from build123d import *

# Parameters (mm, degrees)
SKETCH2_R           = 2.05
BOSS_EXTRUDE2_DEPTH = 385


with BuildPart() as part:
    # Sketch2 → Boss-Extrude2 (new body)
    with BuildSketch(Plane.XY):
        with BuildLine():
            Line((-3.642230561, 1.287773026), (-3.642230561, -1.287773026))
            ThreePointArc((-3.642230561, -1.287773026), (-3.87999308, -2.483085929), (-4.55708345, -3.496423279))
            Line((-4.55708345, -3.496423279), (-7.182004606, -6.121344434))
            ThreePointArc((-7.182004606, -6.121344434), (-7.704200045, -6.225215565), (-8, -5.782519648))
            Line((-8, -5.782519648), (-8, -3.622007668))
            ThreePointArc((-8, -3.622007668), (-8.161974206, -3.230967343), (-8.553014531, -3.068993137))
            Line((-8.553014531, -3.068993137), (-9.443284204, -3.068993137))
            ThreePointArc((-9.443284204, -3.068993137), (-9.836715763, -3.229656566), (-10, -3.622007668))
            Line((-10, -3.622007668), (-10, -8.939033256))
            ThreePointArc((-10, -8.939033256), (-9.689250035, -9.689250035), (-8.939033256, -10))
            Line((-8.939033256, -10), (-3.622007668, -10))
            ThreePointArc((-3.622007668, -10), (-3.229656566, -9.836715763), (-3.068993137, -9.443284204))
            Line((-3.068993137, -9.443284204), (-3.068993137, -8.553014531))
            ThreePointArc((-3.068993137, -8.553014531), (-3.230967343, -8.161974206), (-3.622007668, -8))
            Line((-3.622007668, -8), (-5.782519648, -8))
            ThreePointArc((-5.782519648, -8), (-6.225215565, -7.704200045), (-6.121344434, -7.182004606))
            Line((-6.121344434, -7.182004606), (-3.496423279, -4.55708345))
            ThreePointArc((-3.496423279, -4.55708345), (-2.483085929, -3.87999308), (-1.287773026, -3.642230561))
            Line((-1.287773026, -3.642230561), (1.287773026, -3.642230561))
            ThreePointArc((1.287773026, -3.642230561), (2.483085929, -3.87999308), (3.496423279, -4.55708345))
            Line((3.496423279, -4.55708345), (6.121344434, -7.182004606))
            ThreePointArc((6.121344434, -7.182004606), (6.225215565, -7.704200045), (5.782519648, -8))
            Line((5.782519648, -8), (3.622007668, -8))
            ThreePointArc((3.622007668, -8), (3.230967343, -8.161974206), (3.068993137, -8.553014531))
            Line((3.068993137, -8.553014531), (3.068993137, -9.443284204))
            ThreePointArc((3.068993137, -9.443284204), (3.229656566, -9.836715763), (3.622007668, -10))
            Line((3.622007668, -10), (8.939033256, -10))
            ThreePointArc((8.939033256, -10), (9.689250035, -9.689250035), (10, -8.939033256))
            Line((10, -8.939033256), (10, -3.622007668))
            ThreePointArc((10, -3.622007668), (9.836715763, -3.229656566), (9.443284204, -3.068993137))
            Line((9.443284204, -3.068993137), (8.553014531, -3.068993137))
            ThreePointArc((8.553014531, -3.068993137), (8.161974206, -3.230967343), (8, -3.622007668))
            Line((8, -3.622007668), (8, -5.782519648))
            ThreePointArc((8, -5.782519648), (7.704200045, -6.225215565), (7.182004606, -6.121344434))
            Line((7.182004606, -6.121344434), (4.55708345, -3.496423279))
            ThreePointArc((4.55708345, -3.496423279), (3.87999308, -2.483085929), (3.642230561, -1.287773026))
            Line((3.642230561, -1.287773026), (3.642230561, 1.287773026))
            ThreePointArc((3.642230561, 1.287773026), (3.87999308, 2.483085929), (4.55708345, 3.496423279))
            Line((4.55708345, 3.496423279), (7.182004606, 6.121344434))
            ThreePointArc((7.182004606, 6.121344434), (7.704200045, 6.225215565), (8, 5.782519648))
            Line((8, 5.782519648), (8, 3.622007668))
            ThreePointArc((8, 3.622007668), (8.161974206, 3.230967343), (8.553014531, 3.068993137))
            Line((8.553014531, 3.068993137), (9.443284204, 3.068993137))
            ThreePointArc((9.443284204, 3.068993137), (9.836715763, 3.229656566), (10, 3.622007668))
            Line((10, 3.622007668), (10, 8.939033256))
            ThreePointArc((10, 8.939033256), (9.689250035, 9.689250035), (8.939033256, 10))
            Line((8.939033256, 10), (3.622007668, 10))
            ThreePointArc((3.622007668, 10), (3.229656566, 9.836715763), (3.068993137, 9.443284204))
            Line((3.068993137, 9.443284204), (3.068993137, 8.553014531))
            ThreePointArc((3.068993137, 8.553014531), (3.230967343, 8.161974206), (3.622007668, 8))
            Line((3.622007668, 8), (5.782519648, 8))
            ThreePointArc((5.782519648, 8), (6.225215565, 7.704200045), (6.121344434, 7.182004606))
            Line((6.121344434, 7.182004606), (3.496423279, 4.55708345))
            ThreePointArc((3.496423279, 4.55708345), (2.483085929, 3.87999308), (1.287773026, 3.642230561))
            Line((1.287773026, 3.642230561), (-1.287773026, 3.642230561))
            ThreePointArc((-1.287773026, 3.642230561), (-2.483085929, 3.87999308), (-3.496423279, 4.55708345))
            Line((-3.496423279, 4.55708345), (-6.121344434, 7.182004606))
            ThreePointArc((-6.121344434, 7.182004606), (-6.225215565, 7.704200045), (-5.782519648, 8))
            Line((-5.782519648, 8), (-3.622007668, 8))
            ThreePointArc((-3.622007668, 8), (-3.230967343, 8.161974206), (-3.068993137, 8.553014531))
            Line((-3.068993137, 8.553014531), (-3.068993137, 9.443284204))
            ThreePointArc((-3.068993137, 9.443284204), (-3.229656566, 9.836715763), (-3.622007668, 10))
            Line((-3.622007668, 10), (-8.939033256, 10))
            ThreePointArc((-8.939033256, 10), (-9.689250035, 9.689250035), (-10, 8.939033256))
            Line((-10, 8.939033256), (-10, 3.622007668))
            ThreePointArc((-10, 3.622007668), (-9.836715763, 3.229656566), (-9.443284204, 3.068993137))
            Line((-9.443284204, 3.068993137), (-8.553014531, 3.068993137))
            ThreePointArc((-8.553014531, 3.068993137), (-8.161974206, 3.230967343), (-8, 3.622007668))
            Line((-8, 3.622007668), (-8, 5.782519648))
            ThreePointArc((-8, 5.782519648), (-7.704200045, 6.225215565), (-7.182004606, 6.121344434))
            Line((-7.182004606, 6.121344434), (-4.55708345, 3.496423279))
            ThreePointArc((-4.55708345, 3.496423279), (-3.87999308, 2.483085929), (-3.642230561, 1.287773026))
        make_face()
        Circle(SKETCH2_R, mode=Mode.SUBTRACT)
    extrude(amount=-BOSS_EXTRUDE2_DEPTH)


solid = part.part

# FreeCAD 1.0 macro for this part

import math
import FreeCAD as App
import Part
import Sketcher
from FreeCAD import Vector
Q = App.Units.Quantity

doc = App.newDocument("Part")
body = doc.addObject("PartDesign::Body", "Body")

# Sketch on XY plane
sketch1 = body.newObject("Sketcher::SketchObject", "Sketch")
sketch1.AttachmentSupport = (doc.getObject("XY_Plane"), [""])
sketch1.MapMode = "FlatFace"
sketch1.addGeometry(Part.LineSegment(Vector(-3.642231, 1.287773, 0), Vector(-3.642231, -1.287773, 0)), False)
sketch1.addGeometry(Part.ArcOfCircle(Part.Circle(Vector(-6.765734, -1.287773, 0), Vector(0, 0, 1), 3.123503), math.radians(-45), math.radians(0)), False)
sketch1.addGeometry(Part.LineSegment(Vector(-4.557083, -3.496423, 0), Vector(-7.182005, -6.121344, 0)), False)
sketch1.addGeometry(Part.ArcOfCircle(Part.Circle(Vector(-7.520829, -5.78252, 0), Vector(0, 0, 1), 0.479171), math.radians(180), math.radians(315)), False)
sketch1.addGeometry(Part.LineSegment(Vector(-8, -5.78252, 0), Vector(-8, -3.622008, 0)), False)
sketch1.addGeometry(Part.ArcOfCircle(Part.Circle(Vector(-8.553015, -3.622008, 0), Vector(0, 0, 1), 0.553015), math.radians(0), math.radians(90)), False)
sketch1.addGeometry(Part.LineSegment(Vector(-8.553015, -3.068993, 0), Vector(-9.443284, -3.068993, 0)), False)
sketch1.addGeometry(Part.ArcOfCircle(Part.Circle(Vector(-9.446973, -3.622008, 0), Vector(0, 0, 1), 0.553027), math.radians(89.617806), math.radians(180)), False)
sketch1.addGeometry(Part.LineSegment(Vector(-10, -3.622008, 0), Vector(-10, -8.939033, 0)), False)
sketch1.addGeometry(Part.ArcOfCircle(Part.Circle(Vector(-8.939033, -8.939033, 0), Vector(0, 0, 1), 1.060967), math.radians(-180), math.radians(-90)), False)
sketch1.addGeometry(Part.LineSegment(Vector(-8.939033, -10, 0), Vector(-3.622008, -10, 0)), False)
sketch1.addGeometry(Part.ArcOfCircle(Part.Circle(Vector(-3.622008, -9.446973, 0), Vector(0, 0, 1), 0.553027), math.radians(-90), math.radians(0.382194)), False)
sketch1.addGeometry(Part.LineSegment(Vector(-3.068993, -9.443284, 0), Vector(-3.068993, -8.553015, 0)), False)
sketch1.addGeometry(Part.ArcOfCircle(Part.Circle(Vector(-3.622008, -8.553015, 0), Vector(0, 0, 1), 0.553015), math.radians(0), math.radians(90)), False)
sketch1.addGeometry(Part.LineSegment(Vector(-3.622008, -8, 0), Vector(-5.78252, -8, 0)), False)
sketch1.addGeometry(Part.ArcOfCircle(Part.Circle(Vector(-5.78252, -7.520829, 0), Vector(0, 0, 1), 0.479171), math.radians(135), math.radians(270)), False)
sketch1.addGeometry(Part.LineSegment(Vector(-6.121344, -7.182005, 0), Vector(-3.496423, -4.557083, 0)), False)
sketch1.addGeometry(Part.ArcOfCircle(Part.Circle(Vector(-1.287773, -6.765734, 0), Vector(0, 0, 1), 3.123503), math.radians(90), math.radians(135)), False)
sketch1.addGeometry(Part.LineSegment(Vector(-1.287773, -3.642231, 0), Vector(1.287773, -3.642231, 0)), False)
sketch1.addGeometry(Part.ArcOfCircle(Part.Circle(Vector(1.287773, -6.765734, 0), Vector(0, 0, 1), 3.123503), math.radians(45), math.radians(90)), False)
sketch1.addGeometry(Part.LineSegment(Vector(3.496423, -4.557083, 0), Vector(6.121344, -7.182005, 0)), False)
sketch1.addGeometry(Part.ArcOfCircle(Part.Circle(Vector(5.78252, -7.520829, 0), Vector(0, 0, 1), 0.479171), math.radians(-90), math.radians(45)), False)
sketch1.addGeometry(Part.LineSegment(Vector(5.78252, -8, 0), Vector(3.622008, -8, 0)), False)
sketch1.addGeometry(Part.ArcOfCircle(Part.Circle(Vector(3.622008, -8.553015, 0), Vector(0, 0, 1), 0.553015), math.radians(90), math.radians(180)), False)
sketch1.addGeometry(Part.LineSegment(Vector(3.068993, -8.553015, 0), Vector(3.068993, -9.443284, 0)), False)
sketch1.addGeometry(Part.ArcOfCircle(Part.Circle(Vector(3.622008, -9.446973, 0), Vector(0, 0, 1), 0.553027), math.radians(179.617806), math.radians(270)), False)
sketch1.addGeometry(Part.LineSegment(Vector(3.622008, -10, 0), Vector(8.939033, -10, 0)), False)
sketch1.addGeometry(Part.ArcOfCircle(Part.Circle(Vector(8.939033, -8.939033, 0), Vector(0, 0, 1), 1.060967), math.radians(-90), math.radians(0)), False)
sketch1.addGeometry(Part.LineSegment(Vector(10, -8.939033, 0), Vector(10, -3.622008, 0)), False)
sketch1.addGeometry(Part.ArcOfCircle(Part.Circle(Vector(9.446973, -3.622008, 0), Vector(0, 0, 1), 0.553027), math.radians(0), math.radians(90.382194)), False)
sketch1.addGeometry(Part.LineSegment(Vector(9.443284, -3.068993, 0), Vector(8.553015, -3.068993, 0)), False)
sketch1.addGeometry(Part.ArcOfCircle(Part.Circle(Vector(8.553015, -3.622008, 0), Vector(0, 0, 1), 0.553015), math.radians(90), math.radians(180)), False)
sketch1.addGeometry(Part.LineSegment(Vector(8, -3.622008, 0), Vector(8, -5.78252, 0)), False)
sketch1.addGeometry(Part.ArcOfCircle(Part.Circle(Vector(7.520829, -5.78252, 0), Vector(0, 0, 1), 0.479171), math.radians(-135), math.radians(0)), False)
sketch1.addGeometry(Part.LineSegment(Vector(7.182005, -6.121344, 0), Vector(4.557083, -3.496423, 0)), False)
sketch1.addGeometry(Part.ArcOfCircle(Part.Circle(Vector(6.765734, -1.287773, 0), Vector(0, 0, 1), 3.123503), math.radians(180), math.radians(225)), False)
sketch1.addGeometry(Part.LineSegment(Vector(3.642231, -1.287773, 0), Vector(3.642231, 1.287773, 0)), False)
sketch1.addGeometry(Part.ArcOfCircle(Part.Circle(Vector(6.765734, 1.287773, 0), Vector(0, 0, 1), 3.123503), math.radians(135), math.radians(180)), False)
sketch1.addGeometry(Part.LineSegment(Vector(4.557083, 3.496423, 0), Vector(7.182005, 6.121344, 0)), False)
sketch1.addGeometry(Part.ArcOfCircle(Part.Circle(Vector(7.520829, 5.78252, 0), Vector(0, 0, 1), 0.479171), math.radians(0), math.radians(135)), False)
sketch1.addGeometry(Part.LineSegment(Vector(8, 5.78252, 0), Vector(8, 3.622008, 0)), False)
sketch1.addGeometry(Part.ArcOfCircle(Part.Circle(Vector(8.553015, 3.622008, 0), Vector(0, 0, 1), 0.553015), math.radians(180), math.radians(270)), False)
sketch1.addGeometry(Part.LineSegment(Vector(8.553015, 3.068993, 0), Vector(9.443284, 3.068993, 0)), False)
sketch1.addGeometry(Part.ArcOfCircle(Part.Circle(Vector(9.446973, 3.622008, 0), Vector(0, 0, 1), 0.553027), math.radians(-90.382194), math.radians(0)), False)
sketch1.addGeometry(Part.LineSegment(Vector(10, 3.622008, 0), Vector(10, 8.939033, 0)), False)
sketch1.addGeometry(Part.ArcOfCircle(Part.Circle(Vector(8.939033, 8.939033, 0), Vector(0, 0, 1), 1.060967), math.radians(0), math.radians(90)), False)
sketch1.addGeometry(Part.LineSegment(Vector(8.939033, 10, 0), Vector(3.622008, 10, 0)), False)
sketch1.addGeometry(Part.ArcOfCircle(Part.Circle(Vector(3.622008, 9.446973, 0), Vector(0, 0, 1), 0.553027), math.radians(90), math.radians(180.382194)), False)
sketch1.addGeometry(Part.LineSegment(Vector(3.068993, 9.443284, 0), Vector(3.068993, 8.553015, 0)), False)
sketch1.addGeometry(Part.ArcOfCircle(Part.Circle(Vector(3.622008, 8.553015, 0), Vector(0, 0, 1), 0.553015), math.radians(180), math.radians(270)), False)
sketch1.addGeometry(Part.LineSegment(Vector(3.622008, 8, 0), Vector(5.78252, 8, 0)), False)
sketch1.addGeometry(Part.ArcOfCircle(Part.Circle(Vector(5.78252, 7.520829, 0), Vector(0, 0, 1), 0.479171), math.radians(-45), math.radians(90)), False)
sketch1.addGeometry(Part.LineSegment(Vector(6.121344, 7.182005, 0), Vector(3.496423, 4.557083, 0)), False)
sketch1.addGeometry(Part.ArcOfCircle(Part.Circle(Vector(1.287773, 6.765734, 0), Vector(0, 0, 1), 3.123503), math.radians(-90), math.radians(-45)), False)
sketch1.addGeometry(Part.LineSegment(Vector(1.287773, 3.642231, 0), Vector(-1.287773, 3.642231, 0)), False)
sketch1.addGeometry(Part.ArcOfCircle(Part.Circle(Vector(-1.287773, 6.765734, 0), Vector(0, 0, 1), 3.123503), math.radians(-135), math.radians(-90)), False)
sketch1.addGeometry(Part.LineSegment(Vector(-3.496423, 4.557083, 0), Vector(-6.121344, 7.182005, 0)), False)
sketch1.addGeometry(Part.ArcOfCircle(Part.Circle(Vector(-5.78252, 7.520829, 0), Vector(0, 0, 1), 0.479171), math.radians(90), math.radians(225)), False)
sketch1.addGeometry(Part.LineSegment(Vector(-5.78252, 8, 0), Vector(-3.622008, 8, 0)), False)
sketch1.addGeometry(Part.ArcOfCircle(Part.Circle(Vector(-3.622008, 8.553015, 0), Vector(0, 0, 1), 0.553015), math.radians(-90), math.radians(0)), False)
sketch1.addGeometry(Part.LineSegment(Vector(-3.068993, 8.553015, 0), Vector(-3.068993, 9.443284, 0)), False)
sketch1.addGeometry(Part.ArcOfCircle(Part.Circle(Vector(-3.622008, 9.446973, 0), Vector(0, 0, 1), 0.553027), math.radians(-0.382194), math.radians(90)), False)
sketch1.addGeometry(Part.LineSegment(Vector(-3.622008, 10, 0), Vector(-8.939033, 10, 0)), False)
sketch1.addGeometry(Part.ArcOfCircle(Part.Circle(Vector(-8.939033, 8.939033, 0), Vector(0, 0, 1), 1.060967), math.radians(90), math.radians(180)), False)
sketch1.addGeometry(Part.LineSegment(Vector(-10, 8.939033, 0), Vector(-10, 3.622008, 0)), False)
sketch1.addGeometry(Part.ArcOfCircle(Part.Circle(Vector(-9.446973, 3.622008, 0), Vector(0, 0, 1), 0.553027), math.radians(180), math.radians(270.382194)), False)
sketch1.addGeometry(Part.LineSegment(Vector(-9.443284, 3.068993, 0), Vector(-8.553015, 3.068993, 0)), False)
sketch1.addGeometry(Part.ArcOfCircle(Part.Circle(Vector(-8.553015, 3.622008, 0), Vector(0, 0, 1), 0.553015), math.radians(-90), math.radians(0)), False)
sketch1.addGeometry(Part.LineSegment(Vector(-8, 3.622008, 0), Vector(-8, 5.78252, 0)), False)
sketch1.addGeometry(Part.ArcOfCircle(Part.Circle(Vector(-7.520829, 5.78252, 0), Vector(0, 0, 1), 0.479171), math.radians(45), math.radians(180)), False)
sketch1.addGeometry(Part.LineSegment(Vector(-7.182005, 6.121344, 0), Vector(-4.557083, 3.496423, 0)), False)
sketch1.addGeometry(Part.ArcOfCircle(Part.Circle(Vector(-6.765734, 1.287773, 0), Vector(0, 0, 1), 3.123503), math.radians(0), math.radians(45)), False)
sketch1.addGeometry(Part.Circle(Vector(0, 0, 0), Vector(0, 0, 1), 2.05), False)
sketch1.addConstraint(Sketcher.Constraint("Tangent", 0, 2, 1, 2))
sketch1.addConstraint(Sketcher.Constraint("Tangent", 1, 1, 2, 1))
sketch1.addConstraint(Sketcher.Constraint("Tangent", 2, 2, 3, 2))
sketch1.addConstraint(Sketcher.Constraint("Tangent", 3, 1, 4, 1))
sketch1.addConstraint(Sketcher.Constraint("Tangent", 4, 2, 5, 1))
sketch1.addConstraint(Sketcher.Constraint("Tangent", 5, 2, 6, 1))
sketch1.addConstraint(Sketcher.Constraint("Coincident", 6, 2, 7, 1))
sketch1.addConstraint(Sketcher.Constraint("Tangent", 7, 2, 8, 1))
sketch1.addConstraint(Sketcher.Constraint("Tangent", 8, 2, 9, 1))
sketch1.addConstraint(Sketcher.Constraint("Tangent", 9, 2, 10, 1))
sketch1.addConstraint(Sketcher.Constraint("Tangent", 10, 2, 11, 1))
sketch1.addConstraint(Sketcher.Constraint("Coincident", 11, 2, 12, 1))
sketch1.addConstraint(Sketcher.Constraint("Tangent", 12, 2, 13, 1))
sketch1.addConstraint(Sketcher.Constraint("Tangent", 13, 2, 14, 1))
sketch1.addConstraint(Sketcher.Constraint("Tangent", 14, 2, 15, 2))
sketch1.addConstraint(Sketcher.Constraint("Tangent", 15, 1, 16, 1))
sketch1.addConstraint(Sketcher.Constraint("Tangent", 16, 2, 17, 2))
sketch1.addConstraint(Sketcher.Constraint("Tangent", 17, 1, 18, 1))
sketch1.addConstraint(Sketcher.Constraint("Tangent", 18, 2, 19, 2))
sketch1.addConstraint(Sketcher.Constraint("Tangent", 19, 1, 20, 1))
sketch1.addConstraint(Sketcher.Constraint("Tangent", 20, 2, 21, 2))
sketch1.addConstraint(Sketcher.Constraint("Tangent", 21, 1, 22, 1))
sketch1.addConstraint(Sketcher.Constraint("Tangent", 22, 2, 23, 1))
sketch1.addConstraint(Sketcher.Constraint("Tangent", 23, 2, 24, 1))
sketch1.addConstraint(Sketcher.Constraint("Coincident", 24, 2, 25, 1))
sketch1.addConstraint(Sketcher.Constraint("Tangent", 25, 2, 26, 1))
sketch1.addConstraint(Sketcher.Constraint("Tangent", 26, 2, 27, 1))
sketch1.addConstraint(Sketcher.Constraint("Tangent", 27, 2, 28, 1))
sketch1.addConstraint(Sketcher.Constraint("Tangent", 28, 2, 29, 1))
sketch1.addConstraint(Sketcher.Constraint("Coincident", 29, 2, 30, 1))
sketch1.addConstraint(Sketcher.Constraint("Tangent", 30, 2, 31, 1))
sketch1.addConstraint(Sketcher.Constraint("Tangent", 31, 2, 32, 1))
sketch1.addConstraint(Sketcher.Constraint("Tangent", 32, 2, 33, 2))
sketch1.addConstraint(Sketcher.Constraint("Tangent", 33, 1, 34, 1))
sketch1.addConstraint(Sketcher.Constraint("Tangent", 34, 2, 35, 2))
sketch1.addConstraint(Sketcher.Constraint("Tangent", 35, 1, 36, 1))
sketch1.addConstraint(Sketcher.Constraint("Tangent", 36, 2, 37, 2))
sketch1.addConstraint(Sketcher.Constraint("Tangent", 37, 1, 38, 1))
sketch1.addConstraint(Sketcher.Constraint("Tangent", 38, 2, 39, 2))
sketch1.addConstraint(Sketcher.Constraint("Tangent", 39, 1, 40, 1))
sketch1.addConstraint(Sketcher.Constraint("Tangent", 40, 2, 41, 1))
sketch1.addConstraint(Sketcher.Constraint("Tangent", 41, 2, 42, 1))
sketch1.addConstraint(Sketcher.Constraint("Coincident", 42, 2, 43, 1))
sketch1.addConstraint(Sketcher.Constraint("Tangent", 43, 2, 44, 1))
sketch1.addConstraint(Sketcher.Constraint("Tangent", 44, 2, 45, 1))
sketch1.addConstraint(Sketcher.Constraint("Tangent", 45, 2, 46, 1))
sketch1.addConstraint(Sketcher.Constraint("Tangent", 46, 2, 47, 1))
sketch1.addConstraint(Sketcher.Constraint("Coincident", 47, 2, 48, 1))
sketch1.addConstraint(Sketcher.Constraint("Tangent", 48, 2, 49, 1))
sketch1.addConstraint(Sketcher.Constraint("Tangent", 49, 2, 50, 1))
sketch1.addConstraint(Sketcher.Constraint("Tangent", 50, 2, 51, 2))
sketch1.addConstraint(Sketcher.Constraint("Tangent", 51, 1, 52, 1))
sketch1.addConstraint(Sketcher.Constraint("Tangent", 52, 2, 53, 2))
sketch1.addConstraint(Sketcher.Constraint("Tangent", 53, 1, 54, 1))
sketch1.addConstraint(Sketcher.Constraint("Tangent", 54, 2, 55, 2))
sketch1.addConstraint(Sketcher.Constraint("Tangent", 55, 1, 56, 1))
sketch1.addConstraint(Sketcher.Constraint("Tangent", 56, 2, 57, 2))
sketch1.addConstraint(Sketcher.Constraint("Tangent", 57, 1, 58, 1))
sketch1.addConstraint(Sketcher.Constraint("Tangent", 58, 2, 59, 1))
sketch1.addConstraint(Sketcher.Constraint("Tangent", 59, 2, 60, 1))
sketch1.addConstraint(Sketcher.Constraint("Coincident", 60, 2, 61, 1))
sketch1.addConstraint(Sketcher.Constraint("Tangent", 61, 2, 62, 1))
sketch1.addConstraint(Sketcher.Constraint("Tangent", 62, 2, 63, 1))
sketch1.addConstraint(Sketcher.Constraint("Tangent", 63, 2, 64, 1))
sketch1.addConstraint(Sketcher.Constraint("Tangent", 64, 2, 65, 1))
sketch1.addConstraint(Sketcher.Constraint("Coincident", 65, 2, 66, 1))
sketch1.addConstraint(Sketcher.Constraint("Tangent", 66, 2, 67, 1))
sketch1.addConstraint(Sketcher.Constraint("Tangent", 67, 2, 68, 1))
sketch1.addConstraint(Sketcher.Constraint("Tangent", 68, 2, 69, 2))
sketch1.addConstraint(Sketcher.Constraint("Tangent", 69, 1, 70, 1))
sketch1.addConstraint(Sketcher.Constraint("Tangent", 70, 2, 71, 2))
sketch1.addConstraint(Sketcher.Constraint("Tangent", 71, 1, 0, 1))
sketch1.addConstraint(Sketcher.Constraint("Vertical", 0))
sketch1.addConstraint(Sketcher.Constraint("Vertical", 4))
sketch1.addConstraint(Sketcher.Constraint("Horizontal", 6))
sketch1.addConstraint(Sketcher.Constraint("Vertical", 8))
sketch1.addConstraint(Sketcher.Constraint("Horizontal", 10))
sketch1.addConstraint(Sketcher.Constraint("Vertical", 12))
sketch1.addConstraint(Sketcher.Constraint("Horizontal", 14))
sketch1.addConstraint(Sketcher.Constraint("Horizontal", 18))
sketch1.addConstraint(Sketcher.Constraint("Horizontal", 22))
sketch1.addConstraint(Sketcher.Constraint("Vertical", 24))
sketch1.addConstraint(Sketcher.Constraint("Horizontal", 26))
sketch1.addConstraint(Sketcher.Constraint("Vertical", 28))
sketch1.addConstraint(Sketcher.Constraint("Horizontal", 30))
sketch1.addConstraint(Sketcher.Constraint("Vertical", 32))
sketch1.addConstraint(Sketcher.Constraint("Vertical", 36))
sketch1.addConstraint(Sketcher.Constraint("Vertical", 40))
sketch1.addConstraint(Sketcher.Constraint("Horizontal", 42))
sketch1.addConstraint(Sketcher.Constraint("Vertical", 44))
sketch1.addConstraint(Sketcher.Constraint("Horizontal", 46))
sketch1.addConstraint(Sketcher.Constraint("Vertical", 48))
sketch1.addConstraint(Sketcher.Constraint("Horizontal", 50))
sketch1.addConstraint(Sketcher.Constraint("Horizontal", 54))
sketch1.addConstraint(Sketcher.Constraint("Horizontal", 58))
sketch1.addConstraint(Sketcher.Constraint("Vertical", 60))
sketch1.addConstraint(Sketcher.Constraint("Horizontal", 62))
sketch1.addConstraint(Sketcher.Constraint("Vertical", 64))
sketch1.addConstraint(Sketcher.Constraint("Horizontal", 66))
sketch1.addConstraint(Sketcher.Constraint("Vertical", 68))
sketch1.addConstraint(Sketcher.Constraint("Coincident", 72, 3, -1, 1))
sketch1.addConstraint(Sketcher.Constraint("Equal", 7, 11))
sketch1.addConstraint(Sketcher.Constraint("Equal", 5, 13))
sketch1.addConstraint(Sketcher.Constraint("Equal", 3, 15))
sketch1.addConstraint(Sketcher.Constraint("Equal", 1, 17))
sketch1.addConstraint(Sketcher.Constraint("Equal", 17, 19))
sketch1.addConstraint(Sketcher.Constraint("Equal", 15, 21))
sketch1.addConstraint(Sketcher.Constraint("Equal", 13, 23))
sketch1.addConstraint(Sketcher.Constraint("Equal", 11, 25))
sketch1.addConstraint(Sketcher.Constraint("Equal", 9, 27))
sketch1.addConstraint(Sketcher.Constraint("Equal", 25, 29))
sketch1.addConstraint(Sketcher.Constraint("Equal", 23, 31))
sketch1.addConstraint(Sketcher.Constraint("Equal", 21, 33))
sketch1.addConstraint(Sketcher.Constraint("Equal", 19, 35))
sketch1.addConstraint(Sketcher.Constraint("Equal", 35, 37))
sketch1.addConstraint(Sketcher.Constraint("Equal", 33, 39))
sketch1.addConstraint(Sketcher.Constraint("Equal", 31, 41))
sketch1.addConstraint(Sketcher.Constraint("Equal", 29, 43))
sketch1.addConstraint(Sketcher.Constraint("Equal", 27, 45))
sketch1.addConstraint(Sketcher.Constraint("Equal", 43, 47))
sketch1.addConstraint(Sketcher.Constraint("Equal", 41, 49))
sketch1.addConstraint(Sketcher.Constraint("Equal", 39, 51))
sketch1.addConstraint(Sketcher.Constraint("Equal", 37, 53))
sketch1.addConstraint(Sketcher.Constraint("Equal", 53, 55))
sketch1.addConstraint(Sketcher.Constraint("Equal", 51, 57))
sketch1.addConstraint(Sketcher.Constraint("Equal", 49, 59))
sketch1.addConstraint(Sketcher.Constraint("Equal", 47, 61))
sketch1.addConstraint(Sketcher.Constraint("Equal", 45, 63))
sketch1.addConstraint(Sketcher.Constraint("Equal", 61, 65))
sketch1.addConstraint(Sketcher.Constraint("Equal", 59, 67))
sketch1.addConstraint(Sketcher.Constraint("Equal", 57, 69))
sketch1.addConstraint(Sketcher.Constraint("Equal", 55, 71))
sketch1.addConstraint(Sketcher.Constraint("Symmetric", 1, 3, 37, 3, -1, 1))
sketch1.addConstraint(Sketcher.Constraint("Symmetric", 3, 3, 39, 3, -1, 1))
sketch1.addConstraint(Sketcher.Constraint("Symmetric", 7, 3, 43, 3, -1, 1))
sketch1.addConstraint(Sketcher.Constraint("Symmetric", 11, 3, 47, 3, -1, 1))
sketch1.addConstraint(Sketcher.Constraint("Symmetric", 13, 3, 49, 3, -1, 1))
sketch1.addConstraint(Sketcher.Constraint("Symmetric", 17, 3, 53, 3, -1, 1))
sketch1.addConstraint(Sketcher.Constraint("Symmetric", 21, 3, 57, 3, -1, 1))
sketch1.addConstraint(Sketcher.Constraint("Symmetric", 25, 3, 61, 3, -1, 1))
sketch1.addConstraint(Sketcher.Constraint("Symmetric", 29, 3, 65, 3, -1, 1))
sketch1.addConstraint(Sketcher.Constraint("Symmetric", 31, 3, 67, 3, -1, 1))
sketch1.addConstraint(Sketcher.Constraint("Symmetric", 33, 1, 69, 1, -1, 1))
sketch1.addConstraint(Sketcher.Constraint("Symmetric", 15, 3, 21, 3, -2))
sketch1.addConstraint(Sketcher.Constraint("Symmetric", 11, 3, 25, 3, -2))
sketch1.addConstraint(Sketcher.Constraint("Symmetric", 7, 3, 29, 3, -2))
sketch1.addConstraint(Sketcher.Constraint("Symmetric", 5, 3, 31, 3, -2))
sketch1.addConstraint(Sketcher.Constraint("Symmetric", 2, 2, 33, 1, -2))
sketch1.addConstraint(Sketcher.Constraint("Symmetric", 52, 2, 55, 1, -2))
sketch1.addConstraint(Sketcher.Constraint("Parallel", 2, 16))
sketch1.addConstraint(Sketcher.Constraint("Perpendicular", 16, 20))
sketch1.addConstraint(Sketcher.Constraint("Parallel", 20, 34))
sketch1.addConstraint(Sketcher.Constraint("Horizontal", 5, 3, 7, 3))
sketch1.addConstraint(Sketcher.Constraint("Horizontal", 41, 3, 43, 3))
sketch1.addConstraint(Sketcher.Constraint("Horizontal", 11, 2, 24, 2))
sketch1.addConstraint(Sketcher.Constraint("Horizontal", 47, 2, 60, 2))
sketch1.addConstraint(Sketcher.Constraint("Equal", 54, 0))
sketch1.addConstraint(Sketcher.Constraint("Equal", 58, 4))
sketch1.addConstraint(Sketcher.Constraint("Equal", 62, 8))
sketch1.addConstraint(Sketcher.Constraint("Equal", 66, 12))
sketch1.addConstraint(Sketcher.Constraint("Equal", 2, 16))
sketch1.addConstraint(Sketcher.Constraint("Diameter", 72, Q("4.1 mm")))
sketch1.addConstraint(Sketcher.Constraint("DistanceX", 3, 1, -1, 1, Q("8 mm")))
sketch1.addConstraint(Sketcher.Constraint("DistanceX", 7, 2, -1, 1, Q("10 mm")))
sketch1.addConstraint(Sketcher.Constraint("DistanceY", 13, 2, -1, 1, Q("8 mm")))
sketch1.addConstraint(Sketcher.Constraint("Radius", 3, Q("0.479171 mm")))
sketch1.addConstraint(Sketcher.Constraint("Radius", 1, Q("3.123503 mm")))
sketch1.addConstraint(Sketcher.Constraint("Radius", 5, Q("0.553015 mm")))
sketch1.addConstraint(Sketcher.Constraint("Radius", 9, Q("1.060967 mm")))
sketch1.addConstraint(Sketcher.Constraint("Distance", 2, Q("3.712199 mm")))
sketch1.addConstraint(Sketcher.Constraint("DistanceX", 6, 2, 6, 1, Q("0.89027 mm")))
sketch1.addConstraint(Sketcher.Constraint("DistanceX", 14, 2, 14, 1, Q("2.160512 mm")))
sketch1.addConstraint(Sketcher.Constraint("DistanceX", 10, 1, 10, 2, Q("5.317026 mm")))
pad1 = body.newObject("PartDesign::Pad", "Pad")
pad1.Profile = sketch1
pad1.Length = 385
pad1.Reversed = True

doc.recompute()
